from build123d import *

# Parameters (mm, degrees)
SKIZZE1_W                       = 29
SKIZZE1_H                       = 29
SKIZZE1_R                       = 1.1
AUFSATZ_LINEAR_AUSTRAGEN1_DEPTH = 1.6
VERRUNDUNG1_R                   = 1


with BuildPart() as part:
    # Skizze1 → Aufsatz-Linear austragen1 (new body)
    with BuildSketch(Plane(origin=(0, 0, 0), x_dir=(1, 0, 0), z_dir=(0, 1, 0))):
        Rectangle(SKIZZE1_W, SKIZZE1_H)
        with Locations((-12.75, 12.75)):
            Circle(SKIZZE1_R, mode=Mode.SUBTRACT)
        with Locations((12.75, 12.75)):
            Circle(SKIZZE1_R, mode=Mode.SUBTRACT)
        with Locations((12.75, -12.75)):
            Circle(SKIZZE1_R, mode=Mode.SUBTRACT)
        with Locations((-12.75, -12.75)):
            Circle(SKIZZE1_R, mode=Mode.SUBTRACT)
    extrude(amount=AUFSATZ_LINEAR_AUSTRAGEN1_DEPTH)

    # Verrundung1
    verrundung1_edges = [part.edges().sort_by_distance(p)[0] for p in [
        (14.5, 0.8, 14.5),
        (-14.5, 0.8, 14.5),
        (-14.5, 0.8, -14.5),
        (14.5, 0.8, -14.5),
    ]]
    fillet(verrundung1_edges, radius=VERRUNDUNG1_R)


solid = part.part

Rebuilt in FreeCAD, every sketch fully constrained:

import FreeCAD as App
import Part
import Sketcher

V = App.Vector


def edges_at(feature, points):
    """Names of the edges that pass closest to the given points."""
    edges = feature.Shape.Edges
    near = lambda p: min(range(len(edges)), key=lambda i: edges[i].distToShape(Part.Vertex(*p))[0])
    return sorted({f"Edge{near(p) + 1}" for p in points})

doc = App.newDocument("Part")
body = doc.addObject("PartDesign::Body", "Body")

# Sketch on XZ plane
sketch1 = doc.addObject("Sketcher::SketchObject", "Sketch")
body.addObject(sketch1)
sketch1.AttachmentSupport = (doc.XZ_Plane, [""])
sketch1.MapMode = "FlatFace"
sketch1.addGeometry(Part.LineSegment(V(-14.5, -14.5, 0), V(-14.5, 14.5, 0)), False)
sketch1.addGeometry(Part.LineSegment(V(-14.5, 14.5, 0), V(14.5, 14.5, 0)), False)
sketch1.addGeometry(Part.LineSegment(V(14.5, 14.5, 0), V(14.5, -14.5, 0)), False)
sketch1.addGeometry(Part.LineSegment(V(14.5, -14.5, 0), V(-14.5, -14.5, 0)), False)
sketch1.addGeometry(Part.Circle(V(-12.8, 12.8, 0), V(0, 0, 1), 1.1), False)
sketch1.addGeometry(Part.Circle(V(12.8, 12.8, 0), V(0, 0, 1), 1.1), False)
sketch1.addGeometry(Part.Circle(V(-12.8, -12.8, 0), V(0, 0, 1), 1.1), False)
sketch1.addGeometry(Part.Circle(V(12.8, -12.8, 0), V(0, 0, 1), 1.1), False)
sketch1.addConstraint(Sketcher.Constraint("Coincident", 0, 2, 1, 1))
sketch1.addConstraint(Sketcher.Constraint("Coincident", 1, 2, 2, 1))
sketch1.addConstraint(Sketcher.Constraint("Coincident", 2, 2, 3, 1))
sketch1.addConstraint(Sketcher.Constraint("Coincident", 3, 2, 0, 1))
sketch1.addConstraint(Sketcher.Constraint("Vertical", 0))
sketch1.addConstraint(Sketcher.Constraint("Horizontal", 1))
sketch1.addConstraint(Sketcher.Constraint("Vertical", 2))
sketch1.addConstraint(Sketcher.Constraint("Horizontal", 3))
sketch1.addConstraint(Sketcher.Constraint("Equal", 4, 5))
sketch1.addConstraint(Sketcher.Constraint("Equal", 5, 6))
sketch1.addConstraint(Sketcher.Constraint("Equal", 6, 7))
sketch1.addConstraint(Sketcher.Constraint("Symmetric", 5, 3, 6, 3, -1, 1))
sketch1.addConstraint(Sketcher.Constraint("Symmetric", 4, 3, 7, 3, -1, 1))
sketch1.addConstraint(Sketcher.Constraint("Symmetric", 0, 2, 2, 2, -1, 1))
sketch1.addConstraint(Sketcher.Constraint("Symmetric", 4, 3, 5, 3, -2))
sketch1.addConstraint(Sketcher.Constraint("Equal", 3, 0))
sketch1.addConstraint(Sketcher.Constraint("Diameter", 4, 2.2))
sketch1.addConstraint(Sketcher.Constraint("DistanceX", 1, 1, 1, 2, 29.0))
sketch1.addConstraint(Sketcher.Constraint("DistanceX", 4, 3, 5, 3, 25.5))
sketch1.addConstraint(Sketcher.Constraint("DistanceY", 6, 3, 4, 3, 25.5))
pad1 = doc.addObject("PartDesign::Pad", "Pad")
body.addObject(pad1)
pad1.Profile = sketch1
pad1.Length = 1.6
pad1.Reversed = True
doc.recompute()

fillet = doc.addObject("PartDesign::Fillet", "Fillet")
body.addObject(fillet)
fillet.Base = (pad1, edges_at(pad1, [
    (14.5, 0.8, 14.5),
    (-14.5, 0.8, 14.5),
    (-14.5, 0.8, -14.5),
    (14.5, 0.8, -14.5),
]))
fillet.Radius = 1

doc.recompute()
